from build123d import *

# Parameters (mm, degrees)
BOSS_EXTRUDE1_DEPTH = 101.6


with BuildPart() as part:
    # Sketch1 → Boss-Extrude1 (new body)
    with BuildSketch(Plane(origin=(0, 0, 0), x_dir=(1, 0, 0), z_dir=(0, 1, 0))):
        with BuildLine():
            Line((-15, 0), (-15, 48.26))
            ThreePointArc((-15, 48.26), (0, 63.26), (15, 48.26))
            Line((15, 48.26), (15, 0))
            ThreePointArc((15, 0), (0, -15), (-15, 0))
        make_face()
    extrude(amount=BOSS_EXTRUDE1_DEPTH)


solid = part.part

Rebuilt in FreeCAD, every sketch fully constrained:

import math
import FreeCAD as App
import Part
import Sketcher
Q = App.Units.Quantity

doc = App.newDocument("Part")
body = doc.addObject("PartDesign::Body", "Body")

sketch1 = doc.addObject("Sketcher::SketchObject", "Sketch")
body.addObject(sketch1)
sketch1.AttachmentSupport = (doc.XZ_Plane, [""])
sketch1.MapMode = "FlatFace"
sketch1.addGeometry(Part.LineSegment(App.Vector(-15, -48, 0), App.Vector(-15, 0, 0)), False)
sketch1.addGeometry(Part.ArcOfCircle(Part.Circle(App.Vector(0, 0, 0), App.Vector(0, 0, 1), 15), math.radians(0), math.radians(180)), False)
sketch1.addGeometry(Part.LineSegment(App.Vector(15, 0, 0), App.Vector(15, -48, 0)), False)
sketch1.addGeometry(Part.ArcOfCircle(Part.Circle(App.Vector(0, -48, 0), App.Vector(0, 0, 1), 15), math.radians(180), math.radians(360)), False)
sketch1.addConstraint(Sketcher.Constraint("Tangent", 0, 2, 1, 2))
sketch1.addConstraint(Sketcher.Constraint("Tangent", 1, 1, 2, 1))
sketch1.addConstraint(Sketcher.Constraint("Tangent", 2, 2, 3, 2))
sketch1.addConstraint(Sketcher.Constraint("Tangent", 3, 1, 0, 1))
sketch1.addConstraint(Sketcher.Constraint("Vertical", 0))
sketch1.addConstraint(Sketcher.Constraint("Vertical", 2))
sketch1.addConstraint(Sketcher.Constraint("Coincident", 1, 3, -1, 1))
sketch1.addConstraint(Sketcher.Constraint("DistanceY", 0, 1, 0, 2, Q("1.9 in")))
sketch1.addConstraint(Sketcher.Constraint("Radius", 1, Q("15 mm")))
pad1 = doc.addObject("PartDesign::Pad", "Pad")
body.addObject(pad1)
pad1.Profile = sketch1
pad1.Length = Q("4 in")
pad1.Reversed = True

doc.recompute()
